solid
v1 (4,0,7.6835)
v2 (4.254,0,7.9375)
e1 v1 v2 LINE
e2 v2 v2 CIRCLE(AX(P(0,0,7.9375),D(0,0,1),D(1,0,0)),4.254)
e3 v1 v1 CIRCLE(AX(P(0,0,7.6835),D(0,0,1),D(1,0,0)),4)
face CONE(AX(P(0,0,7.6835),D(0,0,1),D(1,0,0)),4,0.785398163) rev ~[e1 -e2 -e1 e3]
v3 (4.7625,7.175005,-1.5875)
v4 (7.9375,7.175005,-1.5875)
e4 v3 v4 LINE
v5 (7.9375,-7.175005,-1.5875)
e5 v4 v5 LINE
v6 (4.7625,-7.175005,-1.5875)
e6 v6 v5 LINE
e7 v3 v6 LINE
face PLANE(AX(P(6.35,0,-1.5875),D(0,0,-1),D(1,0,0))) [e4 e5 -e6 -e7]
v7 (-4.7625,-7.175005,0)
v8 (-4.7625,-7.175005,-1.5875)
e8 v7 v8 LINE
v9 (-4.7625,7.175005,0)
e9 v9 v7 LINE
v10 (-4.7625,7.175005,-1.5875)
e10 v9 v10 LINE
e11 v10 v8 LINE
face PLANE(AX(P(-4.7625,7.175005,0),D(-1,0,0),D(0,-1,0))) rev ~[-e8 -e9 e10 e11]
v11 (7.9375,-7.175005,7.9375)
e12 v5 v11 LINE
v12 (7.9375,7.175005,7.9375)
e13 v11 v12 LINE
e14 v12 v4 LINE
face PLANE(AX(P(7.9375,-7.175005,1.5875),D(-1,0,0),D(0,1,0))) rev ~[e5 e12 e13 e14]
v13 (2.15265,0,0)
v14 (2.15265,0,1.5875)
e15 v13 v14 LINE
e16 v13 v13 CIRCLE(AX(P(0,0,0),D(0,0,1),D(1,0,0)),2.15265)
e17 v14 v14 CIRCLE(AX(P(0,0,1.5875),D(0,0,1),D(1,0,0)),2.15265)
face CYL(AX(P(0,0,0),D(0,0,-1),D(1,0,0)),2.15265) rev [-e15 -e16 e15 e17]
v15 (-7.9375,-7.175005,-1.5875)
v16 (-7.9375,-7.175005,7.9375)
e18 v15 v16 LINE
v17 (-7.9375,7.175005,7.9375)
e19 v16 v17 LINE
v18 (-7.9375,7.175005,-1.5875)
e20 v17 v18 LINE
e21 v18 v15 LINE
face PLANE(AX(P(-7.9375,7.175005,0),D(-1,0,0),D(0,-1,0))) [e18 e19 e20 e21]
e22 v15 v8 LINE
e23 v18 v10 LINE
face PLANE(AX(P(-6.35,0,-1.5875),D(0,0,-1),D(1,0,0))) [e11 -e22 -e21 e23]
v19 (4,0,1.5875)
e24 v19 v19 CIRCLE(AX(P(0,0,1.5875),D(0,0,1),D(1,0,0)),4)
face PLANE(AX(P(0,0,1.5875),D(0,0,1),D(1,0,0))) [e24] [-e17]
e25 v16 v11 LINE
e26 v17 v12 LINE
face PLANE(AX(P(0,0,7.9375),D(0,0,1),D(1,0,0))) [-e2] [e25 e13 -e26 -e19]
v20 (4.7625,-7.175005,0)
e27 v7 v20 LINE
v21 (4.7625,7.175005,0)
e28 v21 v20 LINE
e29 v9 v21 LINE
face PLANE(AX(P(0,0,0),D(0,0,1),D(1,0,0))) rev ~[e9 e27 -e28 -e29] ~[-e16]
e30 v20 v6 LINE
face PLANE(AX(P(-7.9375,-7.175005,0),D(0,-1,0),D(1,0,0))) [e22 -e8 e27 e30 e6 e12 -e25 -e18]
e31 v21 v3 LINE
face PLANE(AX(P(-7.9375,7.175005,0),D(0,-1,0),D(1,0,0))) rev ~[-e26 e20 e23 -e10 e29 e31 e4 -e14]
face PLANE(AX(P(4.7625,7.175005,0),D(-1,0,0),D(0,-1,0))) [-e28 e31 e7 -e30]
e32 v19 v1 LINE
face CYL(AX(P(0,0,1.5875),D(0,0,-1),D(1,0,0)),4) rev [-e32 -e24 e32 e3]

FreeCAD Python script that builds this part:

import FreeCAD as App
import Part
import Sketcher

V = App.Vector
Q = App.Units.Quantity


def edges_at(feature, points):
    """Names of the edges that pass closest to the given points."""
    edges = feature.Shape.Edges
    near = lambda p: min(range(len(edges)), key=lambda i: edges[i].distToShape(Part.Vertex(*p))[0])
    return sorted({f"Edge{near(p) + 1}" for p in points})


def add_polygon(sketch, points):
    """Adds a closed chain of lines whose ends are joined by coincident constraints."""
    first, n = sketch.GeometryCount, len(points)
    for a, b in zip(points, points[1:] + points[:1]):
        sketch.addGeometry(Part.LineSegment(App.Vector(*a, 0), App.Vector(*b, 0)), False)
    for i in range(n):
        sketch.addConstraint(Sketcher.Constraint("Coincident", first + i, 2, first + (i + 1) % n, 1))

doc = App.newDocument("Part")
body = doc.addObject("PartDesign::Body", "Body")

sketch1 = body.newObject("Sketcher::SketchObject", "Sketch")
sketch1.AttachmentSupport = (doc.getObject("XY_Plane"), [""])
sketch1.MapMode = "FlatFace"
add_polygon(sketch1, [(-7.9, 7.2), (-7.9, -7.2), (7.9, -7.2), (7.9, 7.2)])
sketch1.addGeometry(Part.Circle(V(0, 0, 0), V(0, 0, 1), 2.2), False)
sketch1.addConstraint(Sketcher.Constraint("Vertical", 0))
sketch1.addConstraint(Sketcher.Constraint("Horizontal", 1))
sketch1.addConstraint(Sketcher.Constraint("Vertical", 2))
sketch1.addConstraint(Sketcher.Constraint("Horizontal", 3))
sketch1.addConstraint(Sketcher.Constraint("Coincident", 4, 3, -1, 1))
sketch1.addConstraint(Sketcher.Constraint("Symmetric", 0, 2, 2, 2, -1, 1))
sketch1.addConstraint(Sketcher.Constraint("Diameter", 4, Q("0.1695 in")))
sketch1.addConstraint(Sketcher.Constraint("DistanceX", 1, 1, 1, 2, Q("0.625 in")))
sketch1.addConstraint(Sketcher.Constraint("DistanceY", 0, 2, 0, 1, Q("14.35001 mm")))
pad1 = body.newObject("PartDesign::Pad", "Pad")
pad1.Profile = sketch1
pad1.Length = Q("0.0625 in")

sketch2 = body.newObject("Sketcher::SketchObject", "Sketch001")
sketch2.AttachmentSupport = (doc.getObject("XY_Plane"), [""])
sketch2.MapMode = "FlatFace"
sketch2.AttachmentOffset = App.Placement(V(0, 0, 0.0625 * 25.4), App.Rotation())
add_polygon(sketch2, [(-7.9, 7.2), (-7.9, -7.2), (7.9, -7.2), (7.9, 7.2)])
sketch2.addGeometry(Part.Circle(V(0, 0, 0), V(0, 0, 1), 4), False)
sketch2.addConstraint(Sketcher.Constraint("Vertical", 0))
sketch2.addConstraint(Sketcher.Constraint("Horizontal", 1))
sketch2.addConstraint(Sketcher.Constraint("Vertical", 2))
sketch2.addConstraint(Sketcher.Constraint("Horizontal", 3))
sketch2.addConstraint(Sketcher.Constraint("Coincident", 4, 3, -1, 1))
sketch2.addConstraint(Sketcher.Constraint("Symmetric", 0, 2, 2, 2, -1, 1))
sketch2.addConstraint(Sketcher.Constraint("Diameter", 4, Q("8 mm")))
sketch2.addConstraint(Sketcher.Constraint("DistanceX", 1, 1, 1, 2, Q("0.625 in")))
sketch2.addConstraint(Sketcher.Constraint("DistanceY", 0, 2, 0, 1, Q("14.35001 mm")))
pad2 = body.newObject("PartDesign::Pad", "Pad001")
pad2.Profile = sketch2
pad2.Length = Q("0.25 in")
doc.recompute()

chamfer = body.newObject("PartDesign::Chamfer", "Chamfer")
chamfer.Base = (pad2, edges_at(pad2, [(-4, 0, 7.938)]))
chamfer.Size = Q("0.01 in")

sketch3 = body.newObject("Sketcher::SketchObject", "Sketch002")
sketch3.AttachmentSupport = (doc.getObject("XY_Plane"), [""])
sketch3.MapMode = "FlatFace"
add_polygon(sketch3, [(-7.9, -7.2), (-7.9, 7.2), (-4.8, 7.2), (-4.8, -7.2)])
add_polygon(sketch3, [(4.8, -7.2), (4.8, 7.2), (7.9, 7.2), (7.9, -7.2)])
sketch3.addConstraint(Sketcher.Constraint("Vertical", 0))
sketch3.addConstraint(Sketcher.Constraint("Horizontal", 1))
sketch3.addConstraint(Sketcher.Constraint("Vertical", 2))
sketch3.addConstraint(Sketcher.Constraint("Horizontal", 3))
sketch3.addConstraint(Sketcher.Constraint("Vertical", 4))
sketch3.addConstraint(Sketcher.Constraint("Horizontal", 5))
sketch3.addConstraint(Sketcher.Constraint("Vertical", 6))
sketch3.addConstraint(Sketcher.Constraint("Horizontal", 7))
sketch3.addConstraint(Sketcher.Constraint("Symmetric", 2, 2, 4, 2, -1, 1))
sketch3.addConstraint(Sketcher.Constraint("Symmetric", 0, 2, 6, 2, -1, 1))
sketch3.addConstraint(Sketcher.Constraint("Horizontal", 1, 2, 4, 2))
sketch3.addConstraint(Sketcher.Constraint("DistanceX", 0, 2, 4, 2, Q("0.5 in")))
sketch3.addConstraint(Sketcher.Constraint("DistanceX", 1, 1, 1, 2, Q("0.125 in")))
sketch3.addConstraint(Sketcher.Constraint("DistanceY", 0, 1, 0, 2, Q("14.35001 mm")))
pad3 = body.newObject("PartDesign::Pad", "Pad002")
pad3.Profile = sketch3
pad3.Length = Q("0.0625 in")
pad3.Reversed = True

doc.recompute()
